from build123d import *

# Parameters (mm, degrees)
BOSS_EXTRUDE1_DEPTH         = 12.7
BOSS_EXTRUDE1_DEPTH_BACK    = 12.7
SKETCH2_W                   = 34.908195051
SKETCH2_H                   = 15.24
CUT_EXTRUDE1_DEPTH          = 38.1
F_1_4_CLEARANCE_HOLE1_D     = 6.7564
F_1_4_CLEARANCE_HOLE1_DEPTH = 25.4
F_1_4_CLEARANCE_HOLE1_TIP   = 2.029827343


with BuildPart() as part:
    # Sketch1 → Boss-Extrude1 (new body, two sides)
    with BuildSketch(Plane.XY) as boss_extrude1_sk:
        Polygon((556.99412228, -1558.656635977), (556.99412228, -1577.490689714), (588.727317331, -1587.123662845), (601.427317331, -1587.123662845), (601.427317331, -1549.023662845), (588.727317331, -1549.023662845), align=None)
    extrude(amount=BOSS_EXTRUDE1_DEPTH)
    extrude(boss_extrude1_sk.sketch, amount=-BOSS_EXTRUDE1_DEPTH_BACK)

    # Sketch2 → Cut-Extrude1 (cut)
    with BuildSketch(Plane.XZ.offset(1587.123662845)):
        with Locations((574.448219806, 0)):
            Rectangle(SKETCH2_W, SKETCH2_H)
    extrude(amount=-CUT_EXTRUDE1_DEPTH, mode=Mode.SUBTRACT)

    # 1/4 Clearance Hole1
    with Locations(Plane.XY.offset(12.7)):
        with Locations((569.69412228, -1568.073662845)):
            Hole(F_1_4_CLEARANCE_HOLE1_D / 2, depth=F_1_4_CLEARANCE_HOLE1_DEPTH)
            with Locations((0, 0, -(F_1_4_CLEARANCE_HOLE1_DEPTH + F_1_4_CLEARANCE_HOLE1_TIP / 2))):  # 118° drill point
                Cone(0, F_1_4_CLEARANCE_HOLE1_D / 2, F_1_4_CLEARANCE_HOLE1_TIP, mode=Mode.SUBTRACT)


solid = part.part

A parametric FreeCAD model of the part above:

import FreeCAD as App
import Part
import Sketcher

V = App.Vector
Q = App.Units.Quantity


def add_polygon(sketch, points):
    """Adds a closed chain of lines whose ends are joined by coincident constraints."""
    first, n = sketch.GeometryCount, len(points)
    for a, b in zip(points, points[1:] + points[:1]):
        sketch.addGeometry(Part.LineSegment(App.Vector(*a, 0), App.Vector(*b, 0)), False)
    for i in range(n):
        sketch.addConstraint(Sketcher.Constraint("Coincident", first + i, 2, first + (i + 1) % n, 1))

doc = App.newDocument("Part")
params = doc.addObject("Spreadsheet::Sheet", "Params")
for row, (alias, value) in enumerate([
    ("sketch1_width", "0.5 in"),
    ("sketch1_height", "1.5 in"),
    ("pad1_length", "0.5 in"),
    ("pad1_length2", "0.5 in"),
    ("sketch2_height", "0.6 in"),
    ("pocket1_length", "1.5 in"),
    ("sketch3_diameter", "0.266 in"),
    ("hole_diameter", "0.266 in"),
    ("hole_depth", "1 in"),
], start=1):
    params.set(f"A{row}", alias)
    params.set(f"B{row}", "=" + value)
    params.setAlias(f"B{row}", alias)

body = doc.addObject("PartDesign::Body", "Body")

# Sketch on XY plane
sketch1 = doc.addObject("Sketcher::SketchObject", "Sketch")
body.addObject(sketch1)
sketch1.AttachmentSupport = (doc.XY_Plane, [""])
sketch1.MapMode = "FlatFace"
add_polygon(sketch1, [(557, -1559), (557, -1577), (589, -1587), (601, -1587), (601, -1549), (589, -1549)])  # lines 0-5
sketch1.addConstraint(Sketcher.Constraint("Vertical", 0))
sketch1.addConstraint(Sketcher.Constraint("Horizontal", 2))
sketch1.addConstraint(Sketcher.Constraint("Vertical", 3))
sketch1.addConstraint(Sketcher.Constraint("Horizontal", 4))
sketch1.addConstraint(Sketcher.Constraint("Vertical", 1, 2, 4, 2))
sketch1.addConstraint(Sketcher.Constraint("Equal", 1, 5))
sketch1.addConstraint(Sketcher.Constraint("DistanceX", 2, 1, 2, 2, Q("0.5 in")))
sketch1.addConstraint(Sketcher.Constraint("DistanceY", 3, 1, 3, 2, Q("1.5 in")))
sketch1.addConstraint(Sketcher.Constraint("Distance", 1, 33.163079))
sketch1.addConstraint(Sketcher.Constraint("DistanceY", 0, 2, 0, 1, 18.834054))
sketch1.addConstraint(Sketcher.Constraint("DistanceY", 0, 2, -1, 1, 1577.49069))
sketch1.addConstraint(Sketcher.Constraint("DistanceX", -1, 1, 0, 2, 556.994122))
sketch1.setExpression("Constraints[12]", "Params.sketch1_width")
sketch1.setExpression("Constraints[13]", "Params.sketch1_height")
pad1 = doc.addObject("PartDesign::Pad", "Pad")
body.addObject(pad1)
pad1.Profile = sketch1
pad1.Type = "TwoLengths"
pad1.setExpression("Length", "Params.pad1_length")
pad1.setExpression("Length2", "Params.pad1_length2")

# Sketch on XZ plane
sketch2 = doc.addObject("Sketcher::SketchObject", "Sketch001")
body.addObject(sketch2)
sketch2.AttachmentSupport = (doc.XZ_Plane, [""])
sketch2.MapMode = "FlatFace"
sketch2.AttachmentOffset = App.Placement(V(0, 0, 1587.123663), App.Rotation())
add_polygon(sketch2, [(557, 8), (557, -8), (592, -8), (592, 8)])  # lines 0-3
sketch2.addConstraint(Sketcher.Constraint("Vertical", 0))
sketch2.addConstraint(Sketcher.Constraint("Horizontal", 1))
sketch2.addConstraint(Sketcher.Constraint("Vertical", 2))
sketch2.addConstraint(Sketcher.Constraint("Horizontal", 3))
sketch2.addConstraint(Sketcher.Constraint("DistanceY", 0, 2, 0, 1, Q("0.6 in")))
sketch2.addConstraint(Sketcher.Constraint("DistanceY", 0, 2, -1, 1, Q("0.3 in")))
sketch2.addConstraint(Sketcher.Constraint("DistanceX", 1, 1, 1, 2, 34.908195))
sketch2.addConstraint(Sketcher.Constraint("DistanceX", -1, 1, 0, 2, 556.994122))
sketch2.setExpression("Constraints[8]", "Params.sketch2_height")
pocket1 = doc.addObject("PartDesign::Pocket", "Pocket")
body.addObject(pocket1)
pocket1.Profile = sketch2
pocket1.setExpression("Length", "Params.pocket1_length")

# Sketch on XY plane
sketch3 = doc.addObject("Sketcher::SketchObject", "Sketch002")
body.addObject(sketch3)
sketch3.AttachmentSupport = (doc.XY_Plane, [""])
sketch3.MapMode = "FlatFace"
sketch3.AttachmentOffset = App.Placement(V(0, 0, 0.5 * 25.4), App.Rotation())
sketch3.addGeometry(Part.Circle(V(569.7, -1568.1, 0), V(0, 0, 1), 3.4), False)
sketch3.addConstraint(Sketcher.Constraint("Diameter", 0, Q("0.266 in")))
sketch3.addConstraint(Sketcher.Constraint("DistanceX", -1, 1, 0, 3, 569.694122))
sketch3.addConstraint(Sketcher.Constraint("DistanceY", 0, 3, -1, 1, 1568.073663))
sketch3.setExpression("Constraints[0]", "Params.sketch3_diameter")
doc.recompute()
hole = doc.addObject("PartDesign::Hole", "Hole")
body.addObject(hole)
hole.Profile = sketch3
hole.ThreadType = "None"
hole.setExpression("Diameter", "Params.hole_diameter")
hole.DepthType = "Dimension"
hole.setExpression("Depth", "Params.hole_depth")
hole.DrillPoint = "Angled"
hole.DrillPointAngle = 118

doc.recompute()
